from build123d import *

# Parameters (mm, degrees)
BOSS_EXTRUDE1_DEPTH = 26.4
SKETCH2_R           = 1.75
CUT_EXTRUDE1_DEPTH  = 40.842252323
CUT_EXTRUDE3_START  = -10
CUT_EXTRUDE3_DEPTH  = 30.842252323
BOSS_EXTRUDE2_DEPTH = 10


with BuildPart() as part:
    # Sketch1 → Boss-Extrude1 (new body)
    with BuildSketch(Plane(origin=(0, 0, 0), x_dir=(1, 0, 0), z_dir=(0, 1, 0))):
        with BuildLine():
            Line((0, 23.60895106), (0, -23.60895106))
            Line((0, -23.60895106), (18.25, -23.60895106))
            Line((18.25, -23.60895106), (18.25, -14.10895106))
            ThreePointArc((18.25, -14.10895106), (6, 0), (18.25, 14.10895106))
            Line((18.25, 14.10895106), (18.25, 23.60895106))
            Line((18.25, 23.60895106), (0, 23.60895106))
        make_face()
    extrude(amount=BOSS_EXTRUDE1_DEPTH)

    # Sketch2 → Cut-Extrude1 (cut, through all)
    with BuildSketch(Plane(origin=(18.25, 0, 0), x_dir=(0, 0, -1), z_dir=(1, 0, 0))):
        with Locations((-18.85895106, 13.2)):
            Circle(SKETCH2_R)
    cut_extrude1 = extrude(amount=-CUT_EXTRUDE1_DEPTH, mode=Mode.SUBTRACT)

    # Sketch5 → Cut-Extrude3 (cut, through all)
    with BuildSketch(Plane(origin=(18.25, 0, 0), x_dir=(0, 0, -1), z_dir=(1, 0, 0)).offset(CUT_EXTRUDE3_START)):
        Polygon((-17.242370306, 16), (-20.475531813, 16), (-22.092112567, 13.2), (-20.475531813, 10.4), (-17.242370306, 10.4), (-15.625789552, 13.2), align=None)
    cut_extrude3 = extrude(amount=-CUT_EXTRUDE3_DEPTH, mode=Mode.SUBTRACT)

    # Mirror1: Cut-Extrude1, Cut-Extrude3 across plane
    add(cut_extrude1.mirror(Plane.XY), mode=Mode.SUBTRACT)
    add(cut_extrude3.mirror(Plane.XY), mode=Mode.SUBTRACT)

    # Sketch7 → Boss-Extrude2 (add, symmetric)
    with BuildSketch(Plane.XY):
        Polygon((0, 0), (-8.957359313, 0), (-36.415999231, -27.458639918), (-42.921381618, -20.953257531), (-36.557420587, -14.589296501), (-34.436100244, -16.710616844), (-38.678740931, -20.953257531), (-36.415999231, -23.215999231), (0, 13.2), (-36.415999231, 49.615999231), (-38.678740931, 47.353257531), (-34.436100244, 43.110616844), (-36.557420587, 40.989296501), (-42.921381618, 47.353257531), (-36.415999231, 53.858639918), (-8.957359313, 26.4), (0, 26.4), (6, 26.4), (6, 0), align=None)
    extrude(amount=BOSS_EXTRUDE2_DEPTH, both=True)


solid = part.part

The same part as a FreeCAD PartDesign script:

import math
import FreeCAD as App
import Part
import Sketcher

V = App.Vector
Q = App.Units.Quantity

doc = App.newDocument("Part")
body = doc.addObject("PartDesign::Body", "Body")

# Sketch on XZ plane
sketch1 = doc.addObject("Sketcher::SketchObject", "Sketch")
body.addObject(sketch1)
sketch1.AttachmentSupport = (doc.XZ_Plane, [""])
sketch1.MapMode = "FlatFace"
sketch1.addGeometry(Part.LineSegment(V(0, -24, 0), V(0, 24, 0)), False)
sketch1.addGeometry(Part.LineSegment(V(0, 24, 0), V(18, 24, 0)), False)
sketch1.addGeometry(Part.LineSegment(V(18, 24, 0), V(18, 14, 0)), False)
sketch1.addGeometry(Part.ArcOfCircle(Part.Circle(V(20, 0, 0), V(0, 0, 1), 14), math.radians(98), math.radians(262)), False)
sketch1.addGeometry(Part.LineSegment(V(18, -14, 0), V(18, -24, 0)), False)
sketch1.addGeometry(Part.LineSegment(V(18, -24, 0), V(0, -24, 0)), False)
sketch1.addConstraint(Sketcher.Constraint("Coincident", 0, 2, 1, 1))
sketch1.addConstraint(Sketcher.Constraint("Coincident", 1, 2, 2, 1))
sketch1.addConstraint(Sketcher.Constraint("Coincident", 2, 2, 3, 1))
sketch1.addConstraint(Sketcher.Constraint("Coincident", 3, 2, 4, 1))
sketch1.addConstraint(Sketcher.Constraint("Coincident", 4, 2, 5, 1))
sketch1.addConstraint(Sketcher.Constraint("Coincident", 5, 2, 0, 1))
sketch1.addConstraint(Sketcher.Constraint("Vertical", 0))
sketch1.addConstraint(Sketcher.Constraint("Horizontal", 1))
sketch1.addConstraint(Sketcher.Constraint("Vertical", 2))
sketch1.addConstraint(Sketcher.Constraint("Vertical", 4))
sketch1.addConstraint(Sketcher.Constraint("Horizontal", 5))
sketch1.addConstraint(Sketcher.Constraint("Symmetric", 0, 2, 5, 2, -1, 1))
sketch1.addConstraint(Sketcher.Constraint("Symmetric", 2, 2, 3, 2, -1))
sketch1.addConstraint(Sketcher.Constraint("Radius", 3, 14.25))
sketch1.addConstraint(Sketcher.Constraint("DistanceY", 2, 2, 2, 1, 9.5))
sketch1.addConstraint(Sketcher.Constraint("DistanceX", 1, 2, 3, 3, 2.0))
sketch1.addConstraint(Sketcher.Constraint("DistanceX", 1, 1, 1, 2, 18.25))
pad1 = doc.addObject("PartDesign::Pad", "Pad")
body.addObject(pad1)
pad1.Profile = sketch1
pad1.Length = 26.4
pad1.Reversed = True

# Sketch on YZ plane
sketch2 = doc.addObject("Sketcher::SketchObject", "Sketch001")
body.addObject(sketch2)
sketch2.AttachmentSupport = (doc.YZ_Plane, [""])
sketch2.MapMode = "FlatFace"
sketch2.AttachmentOffset = App.Placement(V(0, 0, 18.25), App.Rotation())
sketch2.addGeometry(Part.Circle(V(13.2, 18.9, 0), V(0, 0, 1), 1.8), False)
sketch2.addConstraint(Sketcher.Constraint("Diameter", 0, 3.5))
sketch2.addConstraint(Sketcher.Constraint("DistanceX", -1, 1, 0, 3, 13.2))
sketch2.addConstraint(Sketcher.Constraint("DistanceY", -1, 1, 0, 3, 18.858951))
pocket1 = doc.addObject("PartDesign::Pocket", "Pocket")
body.addObject(pocket1)
pocket1.Profile = sketch2
pocket1.Type = "ThroughAll"

# Sketch on YZ plane
sketch3 = doc.addObject("Sketcher::SketchObject", "Sketch002")
body.addObject(sketch3)
sketch3.AttachmentSupport = (doc.YZ_Plane, [""])
sketch3.MapMode = "FlatFace"
sketch3.AttachmentOffset = App.Placement(V(0, 0, 8.25), App.Rotation())
sketch3.addGeometry(Part.LineSegment(V(16, 17.2, 0), V(16, 20.5, 0)), False)
sketch3.addGeometry(Part.LineSegment(V(16, 20.5, 0), V(13.2, 22.1, 0)), False)
sketch3.addGeometry(Part.LineSegment(V(13.2, 22.1, 0), V(10.4, 20.5, 0)), False)
sketch3.addGeometry(Part.LineSegment(V(10.4, 20.5, 0), V(10.4, 17.2, 0)), False)
sketch3.addGeometry(Part.LineSegment(V(10.4, 17.2, 0), V(13.2, 15.6, 0)), False)
sketch3.addGeometry(Part.LineSegment(V(13.2, 15.6, 0), V(16, 17.2, 0)), False)
sketch3.addConstraint(Sketcher.Constraint("Coincident", 0, 2, 1, 1))
sketch3.addConstraint(Sketcher.Constraint("Coincident", 1, 2, 2, 1))
sketch3.addConstraint(Sketcher.Constraint("Coincident", 2, 2, 3, 1))
sketch3.addConstraint(Sketcher.Constraint("Coincident", 3, 2, 4, 1))
sketch3.addConstraint(Sketcher.Constraint("Coincident", 4, 2, 5, 1))
sketch3.addConstraint(Sketcher.Constraint("Coincident", 5, 2, 0, 1))
sketch3.addConstraint(Sketcher.Constraint("Vertical", 0))
sketch3.addConstraint(Sketcher.Constraint("Vertical", 3))
sketch3.addConstraint(Sketcher.Constraint("Parallel", 1, 4))
sketch3.addConstraint(Sketcher.Constraint("Parallel", 2, 5))
sketch3.addConstraint(Sketcher.Constraint("Horizontal", 0, 2, 2, 2))
sketch3.addConstraint(Sketcher.Constraint("Horizontal", 3, 2, 5, 2))
sketch3.addConstraint(Sketcher.Constraint("Vertical", 1, 2, 4, 2))
sketch3.addConstraint(Sketcher.Constraint("Angle", 1, Q("150 deg")))
sketch3.addConstraint(Sketcher.Constraint("DistanceX", -1, 1, 0, 2, 16.0))
sketch3.addConstraint(Sketcher.Constraint("DistanceX", -1, 1, 1, 2, 13.2))
sketch3.addConstraint(Sketcher.Constraint("DistanceY", 0, 1, 0, 2, 3.233162))
sketch3.addConstraint(Sketcher.Constraint("DistanceY", -1, 1, 0, 2, 20.475532))
pocket2 = doc.addObject("PartDesign::Pocket", "Pocket001")
body.addObject(pocket2)
pocket2.Profile = sketch3
pocket2.Type = "ThroughAll"
doc.recompute()

mirrored = doc.addObject("PartDesign::Mirrored", "Mirrored")
body.addObject(mirrored)
mirrored.Originals = [pocket1, pocket2]
mirrored.MirrorPlane = (doc.XY_Plane, [""])
body.Tip = mirrored

# Sketch on XY plane
sketch4 = doc.addObject("Sketcher::SketchObject", "Sketch003")
body.addObject(sketch4)
sketch4.AttachmentSupport = (doc.XY_Plane, [""])
sketch4.MapMode = "FlatFace"
sketch4.addGeometry(Part.LineSegment(V(-9, 0, 0), V(6, 0, 0)), False)
sketch4.addGeometry(Part.LineSegment(V(6, 0, 0), V(6, 26.4, 0)), False)
sketch4.addGeometry(Part.LineSegment(V(6, 26.4, 0), V(-9, 26.4, 0)), False)
sketch4.addGeometry(Part.LineSegment(V(-9, 26.4, 0), V(-36.4, 53.9, 0)), False)
sketch4.addGeometry(Part.LineSegment(V(-36.4, 53.9, 0), V(-42.9, 47.4, 0)), False)
sketch4.addGeometry(Part.LineSegment(V(-42.9, 47.4, 0), V(-36.6, 41, 0)), False)
sketch4.addGeometry(Part.LineSegment(V(-36.6, 41, 0), V(-34.4, 43.1, 0)), False)
sketch4.addGeometry(Part.LineSegment(V(-34.4, 43.1, 0), V(-38.7, 47.4, 0)), False)
sketch4.addGeometry(Part.LineSegment(V(-38.7, 47.4, 0), V(-36.4, 49.6, 0)), False)
sketch4.addGeometry(Part.LineSegment(V(-36.4, 49.6, 0), V(0, 13.2, 0)), False)
sketch4.addGeometry(Part.LineSegment(V(0, 13.2, 0), V(-36.4, -23.2, 0)), False)
sketch4.addGeometry(Part.LineSegment(V(-36.4, -23.2, 0), V(-38.7, -21, 0)), False)
sketch4.addGeometry(Part.LineSegment(V(-38.7, -21, 0), V(-34.4, -16.7, 0)), False)
sketch4.addGeometry(Part.LineSegment(V(-34.4, -16.7, 0), V(-36.6, -14.6, 0)), False)
sketch4.addGeometry(Part.LineSegment(V(-36.6, -14.6, 0), V(-42.9, -21, 0)), False)
sketch4.addGeometry(Part.LineSegment(V(-42.9, -21, 0), V(-36.4, -27.5, 0)), False)
sketch4.addGeometry(Part.LineSegment(V(-36.4, -27.5, 0), V(-9, 0, 0)), False)
sketch4.addConstraint(Sketcher.Constraint("Coincident", 0, 2, 1, 1))
sketch4.addConstraint(Sketcher.Constraint("Coincident", 1, 2, 2, 1))
sketch4.addConstraint(Sketcher.Constraint("Coincident", 2, 2, 3, 1))
sketch4.addConstraint(Sketcher.Constraint("Coincident", 3, 2, 4, 1))
sketch4.addConstraint(Sketcher.Constraint("Coincident", 4, 2, 5, 1))
sketch4.addConstraint(Sketcher.Constraint("Coincident", 5, 2, 6, 1))
sketch4.addConstraint(Sketcher.Constraint("Coincident", 6, 2, 7, 1))
sketch4.addConstraint(Sketcher.Constraint("Coincident", 7, 2, 8, 1))
sketch4.addConstraint(Sketcher.Constraint("Coincident", 8, 2, 9, 1))
sketch4.addConstraint(Sketcher.Constraint("Coincident", 9, 2, 10, 1))
sketch4.addConstraint(Sketcher.Constraint("Coincident", 10, 2, 11, 1))
sketch4.addConstraint(Sketcher.Constraint("Coincident", 11, 2, 12, 1))
sketch4.addConstraint(Sketcher.Constraint("Coincident", 12, 2, 13, 1))
sketch4.addConstraint(Sketcher.Constraint("Coincident", 13, 2, 14, 1))
sketch4.addConstraint(Sketcher.Constraint("Coincident", 14, 2, 15, 1))
sketch4.addConstraint(Sketcher.Constraint("Coincident", 15, 2, 16, 1))
sketch4.addConstraint(Sketcher.Constraint("Coincident", 16, 2, 0, 1))
sketch4.addConstraint(Sketcher.Constraint("Horizontal", 0))
sketch4.addConstraint(Sketcher.Constraint("Vertical", 1))
sketch4.addConstraint(Sketcher.Constraint("Horizontal", 2))
sketch4.addConstraint(Sketcher.Constraint("PointOnObject", 0, 2, -1))
sketch4.addConstraint(Sketcher.Constraint("PointOnObject", 9, 2, -2))
sketch4.addConstraint(Sketcher.Constraint("Perpendicular", 3, 4))
sketch4.addConstraint(Sketcher.Constraint("Perpendicular", 4, 5))
sketch4.addConstraint(Sketcher.Constraint("Perpendicular", 5, 6))
sketch4.addConstraint(Sketcher.Constraint("Perpendicular", 6, 7))
sketch4.addConstraint(Sketcher.Constraint("Perpendicular", 7, 8))
sketch4.addConstraint(Sketcher.Constraint("Perpendicular", 8, 9))
sketch4.addConstraint(Sketcher.Constraint("Perpendicular", 9, 10))
sketch4.addConstraint(Sketcher.Constraint("Perpendicular", 10, 11))
sketch4.addConstraint(Sketcher.Constraint("Perpendicular", 11, 12))
sketch4.addConstraint(Sketcher.Constraint("Perpendicular", 12, 13))
sketch4.addConstraint(Sketcher.Constraint("Perpendicular", 13, 14))
sketch4.addConstraint(Sketcher.Constraint("Perpendicular", 14, 15))
sketch4.addConstraint(Sketcher.Constraint("Perpendicular", 15, 16))
sketch4.addConstraint(Sketcher.Constraint("Horizontal", 4, 2, 7, 2))
sketch4.addConstraint(Sketcher.Constraint("Horizontal", 11, 2, 14, 2))
sketch4.addConstraint(Sketcher.Constraint("Vertical", 3, 2, 8, 2))
sketch4.addConstraint(Sketcher.Constraint("Vertical", 8, 2, 10, 2))
sketch4.addConstraint(Sketcher.Constraint("Vertical", 7, 2, 11, 2))
sketch4.addConstraint(Sketcher.Constraint("Vertical", 6, 2, 12, 2))
sketch4.addConstraint(Sketcher.Constraint("Vertical", 5, 2, 13, 2))
sketch4.addConstraint(Sketcher.Constraint("Vertical", 4, 2, 14, 2))
sketch4.addConstraint(Sketcher.Constraint("Vertical", 10, 2, 15, 2))
sketch4.addConstraint(Sketcher.Constraint("Vertical", 2, 2, 16, 2))
sketch4.addConstraint(Sketcher.Constraint("Distance", 5, 9.0))
sketch4.addConstraint(Sketcher.Constraint("Distance", 6, 3.0))
sketch4.addConstraint(Sketcher.Constraint("DistanceY", 1, 1, 1, 2, 26.4))
sketch4.addConstraint(Sketcher.Constraint("DistanceX", -1, 1, 0, 2, 6.0))
sketch4.addConstraint(Sketcher.Constraint("Distance", 4, 9.2))
sketch4.addConstraint(Sketcher.Constraint("Distance", 9, 51.5))
pad2 = doc.addObject("PartDesign::Pad", "Pad001")
body.addObject(pad2)
pad2.Profile = sketch4
pad2.Length = 20
pad2.Midplane = True

doc.recompute()
